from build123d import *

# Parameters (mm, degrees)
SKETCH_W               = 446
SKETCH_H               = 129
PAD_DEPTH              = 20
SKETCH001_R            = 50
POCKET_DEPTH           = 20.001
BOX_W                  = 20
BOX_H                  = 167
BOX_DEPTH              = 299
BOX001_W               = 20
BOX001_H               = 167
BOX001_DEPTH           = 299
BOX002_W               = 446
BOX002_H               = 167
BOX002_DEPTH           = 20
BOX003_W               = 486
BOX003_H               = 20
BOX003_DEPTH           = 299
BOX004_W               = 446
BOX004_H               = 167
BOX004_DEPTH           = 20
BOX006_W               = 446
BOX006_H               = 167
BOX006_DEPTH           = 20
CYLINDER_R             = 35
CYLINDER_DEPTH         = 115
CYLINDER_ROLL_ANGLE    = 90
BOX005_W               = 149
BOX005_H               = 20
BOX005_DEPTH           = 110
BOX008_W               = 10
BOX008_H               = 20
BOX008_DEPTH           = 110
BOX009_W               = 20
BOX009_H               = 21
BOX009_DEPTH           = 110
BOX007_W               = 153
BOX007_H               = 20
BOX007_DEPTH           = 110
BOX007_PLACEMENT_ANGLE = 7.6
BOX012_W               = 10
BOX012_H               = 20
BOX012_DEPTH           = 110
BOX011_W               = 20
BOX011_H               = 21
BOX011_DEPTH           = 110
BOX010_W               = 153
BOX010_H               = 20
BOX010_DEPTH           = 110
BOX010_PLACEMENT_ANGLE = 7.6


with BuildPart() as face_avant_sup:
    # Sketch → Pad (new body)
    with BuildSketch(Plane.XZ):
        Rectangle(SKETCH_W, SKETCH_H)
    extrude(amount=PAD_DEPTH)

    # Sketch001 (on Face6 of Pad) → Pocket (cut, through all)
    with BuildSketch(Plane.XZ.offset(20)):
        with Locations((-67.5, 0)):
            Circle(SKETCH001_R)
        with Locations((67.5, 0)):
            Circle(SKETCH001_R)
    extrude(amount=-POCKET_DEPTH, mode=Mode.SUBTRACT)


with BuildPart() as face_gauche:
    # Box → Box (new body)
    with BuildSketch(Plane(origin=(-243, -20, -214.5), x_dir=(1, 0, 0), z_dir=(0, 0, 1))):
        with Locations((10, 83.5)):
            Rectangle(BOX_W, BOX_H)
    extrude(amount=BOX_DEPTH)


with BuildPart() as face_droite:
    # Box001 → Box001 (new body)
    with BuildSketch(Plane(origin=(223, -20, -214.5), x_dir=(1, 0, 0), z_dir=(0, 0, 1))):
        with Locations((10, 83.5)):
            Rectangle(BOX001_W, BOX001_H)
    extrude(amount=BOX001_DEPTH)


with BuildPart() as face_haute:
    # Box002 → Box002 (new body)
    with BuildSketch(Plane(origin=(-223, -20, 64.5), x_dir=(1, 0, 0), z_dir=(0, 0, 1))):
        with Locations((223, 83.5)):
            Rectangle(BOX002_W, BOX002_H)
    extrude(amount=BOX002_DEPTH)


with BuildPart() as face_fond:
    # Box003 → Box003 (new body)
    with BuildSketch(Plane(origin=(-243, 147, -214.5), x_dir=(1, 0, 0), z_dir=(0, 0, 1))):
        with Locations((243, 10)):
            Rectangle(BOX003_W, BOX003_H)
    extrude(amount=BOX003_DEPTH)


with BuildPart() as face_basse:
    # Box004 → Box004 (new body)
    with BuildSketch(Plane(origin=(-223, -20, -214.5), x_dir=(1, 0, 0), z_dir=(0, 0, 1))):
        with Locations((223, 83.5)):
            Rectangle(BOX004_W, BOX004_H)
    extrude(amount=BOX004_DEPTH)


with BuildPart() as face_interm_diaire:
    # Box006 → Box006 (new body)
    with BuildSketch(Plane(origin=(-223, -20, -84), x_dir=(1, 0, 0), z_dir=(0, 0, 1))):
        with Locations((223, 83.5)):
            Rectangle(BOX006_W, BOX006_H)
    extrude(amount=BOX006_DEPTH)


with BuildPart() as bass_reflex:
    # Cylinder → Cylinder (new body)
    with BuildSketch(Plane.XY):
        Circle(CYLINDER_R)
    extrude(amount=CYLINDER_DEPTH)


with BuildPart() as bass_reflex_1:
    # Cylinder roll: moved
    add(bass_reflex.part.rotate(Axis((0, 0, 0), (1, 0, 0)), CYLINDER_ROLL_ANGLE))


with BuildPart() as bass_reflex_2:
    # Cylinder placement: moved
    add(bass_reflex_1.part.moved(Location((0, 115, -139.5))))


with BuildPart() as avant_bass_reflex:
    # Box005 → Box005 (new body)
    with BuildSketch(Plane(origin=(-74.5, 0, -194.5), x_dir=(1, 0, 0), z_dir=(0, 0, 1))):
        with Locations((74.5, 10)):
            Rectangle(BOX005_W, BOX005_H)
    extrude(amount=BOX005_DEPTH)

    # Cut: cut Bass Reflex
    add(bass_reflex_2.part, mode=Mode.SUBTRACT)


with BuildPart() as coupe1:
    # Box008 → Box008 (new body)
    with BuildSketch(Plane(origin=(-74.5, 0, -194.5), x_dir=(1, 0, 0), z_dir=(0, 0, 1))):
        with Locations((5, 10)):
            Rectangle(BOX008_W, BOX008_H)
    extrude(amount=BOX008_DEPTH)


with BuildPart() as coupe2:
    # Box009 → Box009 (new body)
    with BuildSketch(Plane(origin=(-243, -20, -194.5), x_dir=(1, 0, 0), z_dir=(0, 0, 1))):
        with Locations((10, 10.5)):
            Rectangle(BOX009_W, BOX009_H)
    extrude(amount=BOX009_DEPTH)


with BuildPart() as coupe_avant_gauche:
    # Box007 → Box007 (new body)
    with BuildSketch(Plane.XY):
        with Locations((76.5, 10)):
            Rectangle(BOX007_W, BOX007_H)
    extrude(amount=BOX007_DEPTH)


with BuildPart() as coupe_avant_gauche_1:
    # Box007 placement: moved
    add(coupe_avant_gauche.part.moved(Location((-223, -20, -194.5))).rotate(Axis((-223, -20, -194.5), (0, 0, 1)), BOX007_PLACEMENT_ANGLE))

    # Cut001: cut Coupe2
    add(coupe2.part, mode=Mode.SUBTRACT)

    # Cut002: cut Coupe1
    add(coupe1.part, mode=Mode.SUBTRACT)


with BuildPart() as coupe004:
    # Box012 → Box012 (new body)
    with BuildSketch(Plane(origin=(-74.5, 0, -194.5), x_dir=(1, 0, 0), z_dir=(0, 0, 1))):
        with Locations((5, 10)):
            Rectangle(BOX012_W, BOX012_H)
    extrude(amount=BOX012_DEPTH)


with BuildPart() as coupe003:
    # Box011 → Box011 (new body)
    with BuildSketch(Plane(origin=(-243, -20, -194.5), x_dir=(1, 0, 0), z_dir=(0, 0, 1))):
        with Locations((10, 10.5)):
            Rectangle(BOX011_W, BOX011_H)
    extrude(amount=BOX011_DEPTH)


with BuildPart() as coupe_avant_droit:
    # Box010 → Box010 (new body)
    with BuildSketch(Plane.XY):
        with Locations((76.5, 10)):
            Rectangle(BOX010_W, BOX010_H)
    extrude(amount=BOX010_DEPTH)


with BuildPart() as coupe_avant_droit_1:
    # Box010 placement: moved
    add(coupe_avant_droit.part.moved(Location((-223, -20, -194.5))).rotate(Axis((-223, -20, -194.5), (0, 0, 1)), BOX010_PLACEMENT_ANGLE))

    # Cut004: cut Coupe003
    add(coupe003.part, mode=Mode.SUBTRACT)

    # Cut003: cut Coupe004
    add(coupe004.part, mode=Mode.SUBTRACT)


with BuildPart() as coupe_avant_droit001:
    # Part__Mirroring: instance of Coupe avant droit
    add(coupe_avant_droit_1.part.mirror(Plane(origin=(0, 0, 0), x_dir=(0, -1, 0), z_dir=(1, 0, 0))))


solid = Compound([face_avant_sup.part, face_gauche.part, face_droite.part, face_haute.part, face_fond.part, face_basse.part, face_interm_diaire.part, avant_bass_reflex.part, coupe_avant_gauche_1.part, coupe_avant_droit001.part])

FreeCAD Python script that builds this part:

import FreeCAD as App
import Part
import Sketcher
from FreeCAD import Vector
Q = App.Units.Quantity

doc = App.newDocument("Part")
body = doc.addObject("PartDesign::Body", "Body")

# Sketch on XZ plane
sketch1 = body.newObject("Sketcher::SketchObject", "Sketch")
sketch1.AttachmentSupport = (doc.getObject("XZ_Plane"), [""])
sketch1.MapMode = "FlatFace"
sketch1.addGeometry(Part.LineSegment(Vector(-223, 64, 0), Vector(-223, -64, 0)), False)
sketch1.addGeometry(Part.LineSegment(Vector(-223, -64, 0), Vector(223, -64, 0)), False)
sketch1.addGeometry(Part.LineSegment(Vector(223, -64, 0), Vector(223, 64, 0)), False)
sketch1.addGeometry(Part.LineSegment(Vector(223, 64, 0), Vector(-223, 64, 0)), False)
sketch1.addConstraint(Sketcher.Constraint("Coincident", 0, 2, 1, 1))
sketch1.addConstraint(Sketcher.Constraint("Coincident", 1, 2, 2, 1))
sketch1.addConstraint(Sketcher.Constraint("Coincident", 2, 2, 3, 1))
sketch1.addConstraint(Sketcher.Constraint("Coincident", 3, 2, 0, 1))
sketch1.addConstraint(Sketcher.Constraint("Vertical", 0))
sketch1.addConstraint(Sketcher.Constraint("Horizontal", 1))
sketch1.addConstraint(Sketcher.Constraint("Vertical", 2))
sketch1.addConstraint(Sketcher.Constraint("Horizontal", 3))
sketch1.addConstraint(Sketcher.Constraint("Symmetric", 0, 2, 2, 2, -1, 1))
sketch1.addConstraint(Sketcher.Constraint("DistanceX", 1, 1, 1, 2, Q("446 mm")))
sketch1.addConstraint(Sketcher.Constraint("DistanceY", 0, 2, 0, 1, Q("129 mm")))
pad1 = body.newObject("PartDesign::Pad", "Pad")
pad1.Profile = sketch1
pad1.Length = 20

# Sketch on XZ plane
sketch2 = body.newObject("Sketcher::SketchObject", "Sketch001")
sketch2.AttachmentSupport = (doc.getObject("XZ_Plane"), [""])
sketch2.MapMode = "FlatFace"
sketch2.AttachmentOffset = App.Placement(Vector(0, 0, 20), App.Rotation())
sketch2.addGeometry(Part.Circle(Vector(-68, 0, 0), Vector(0, 0, 1), 50), False)
sketch2.addGeometry(Part.Circle(Vector(68, 0, 0), Vector(0, 0, 1), 50), False)
sketch2.addConstraint(Sketcher.Constraint("Equal", 0, 1))
sketch2.addConstraint(Sketcher.Constraint("Symmetric", 0, 3, 1, 3, -1, 1))
sketch2.addConstraint(Sketcher.Constraint("PointOnObject", 0, 3, -1))
sketch2.addConstraint(Sketcher.Constraint("Diameter", 0, Q("100 mm")))
sketch2.addConstraint(Sketcher.Constraint("DistanceX", 0, 3, 1, 3, Q("135 mm")))
pocket1 = body.newObject("PartDesign::Pocket", "Pocket")
pocket1.Profile = sketch2
pocket1.Type = "ThroughAll"
body2 = doc.addObject("PartDesign::Body", "Body001")

# Sketch on XY plane
sketch3 = body2.newObject("Sketcher::SketchObject", "Sketch002")
sketch3.AttachmentSupport = (doc.getObject("XY_Plane001"), [""])
sketch3.MapMode = "FlatFace"
sketch3.AttachmentOffset = App.Placement(Vector(0, 0, -214.5), App.Rotation())
sketch3.addGeometry(Part.LineSegment(Vector(-243, 147, 0), Vector(-243, -20, 0)), False)
sketch3.addGeometry(Part.LineSegment(Vector(-243, -20, 0), Vector(-223, -20, 0)), False)
sketch3.addGeometry(Part.LineSegment(Vector(-223, -20, 0), Vector(-223, 147, 0)), False)
sketch3.addGeometry(Part.LineSegment(Vector(-223, 147, 0), Vector(-243, 147, 0)), False)
sketch3.addConstraint(Sketcher.Constraint("Coincident", 0, 2, 1, 1))
sketch3.addConstraint(Sketcher.Constraint("Coincident", 1, 2, 2, 1))
sketch3.addConstraint(Sketcher.Constraint("Coincident", 2, 2, 3, 1))
sketch3.addConstraint(Sketcher.Constraint("Coincident", 3, 2, 0, 1))
sketch3.addConstraint(Sketcher.Constraint("Vertical", 0))
sketch3.addConstraint(Sketcher.Constraint("Horizontal", 1))
sketch3.addConstraint(Sketcher.Constraint("Vertical", 2))
sketch3.addConstraint(Sketcher.Constraint("Horizontal", 3))
sketch3.addConstraint(Sketcher.Constraint("DistanceX", 1, 1, 1, 2, Q("20 mm")))
sketch3.addConstraint(Sketcher.Constraint("DistanceY", 0, 2, 0, 1, Q("167 mm")))
sketch3.addConstraint(Sketcher.Constraint("DistanceX", 0, 2, -1, 1, Q("243 mm")))
sketch3.addConstraint(Sketcher.Constraint("DistanceY", 0, 2, -1, 1, Q("20 mm")))
pad2 = body2.newObject("PartDesign::Pad", "Pad001")
pad2.Profile = sketch3
pad2.Length = 299
body3 = doc.addObject("PartDesign::Body", "Body002")

# Sketch on XY plane
sketch4 = body3.newObject("Sketcher::SketchObject", "Sketch003")
sketch4.AttachmentSupport = (doc.getObject("XY_Plane002"), [""])
sketch4.MapMode = "FlatFace"
sketch4.AttachmentOffset = App.Placement(Vector(0, 0, -214.5), App.Rotation())
sketch4.addGeometry(Part.LineSegment(Vector(223, 147, 0), Vector(223, -20, 0)), False)
sketch4.addGeometry(Part.LineSegment(Vector(223, -20, 0), Vector(243, -20, 0)), False)
sketch4.addGeometry(Part.LineSegment(Vector(243, -20, 0), Vector(243, 147, 0)), False)
sketch4.addGeometry(Part.LineSegment(Vector(243, 147, 0), Vector(223, 147, 0)), False)
sketch4.addConstraint(Sketcher.Constraint("Coincident", 0, 2, 1, 1))
sketch4.addConstraint(Sketcher.Constraint("Coincident", 1, 2, 2, 1))
sketch4.addConstraint(Sketcher.Constraint("Coincident", 2, 2, 3, 1))
sketch4.addConstraint(Sketcher.Constraint("Coincident", 3, 2, 0, 1))
sketch4.addConstraint(Sketcher.Constraint("Vertical", 0))
sketch4.addConstraint(Sketcher.Constraint("Horizontal", 1))
sketch4.addConstraint(Sketcher.Constraint("Vertical", 2))
sketch4.addConstraint(Sketcher.Constraint("Horizontal", 3))
sketch4.addConstraint(Sketcher.Constraint("DistanceX", 1, 1, 1, 2, Q("20 mm")))
sketch4.addConstraint(Sketcher.Constraint("DistanceY", 0, 2, 0, 1, Q("167 mm")))
sketch4.addConstraint(Sketcher.Constraint("DistanceX", -1, 1, 0, 2, Q("223 mm")))
sketch4.addConstraint(Sketcher.Constraint("DistanceY", 0, 2, -1, 1, Q("20 mm")))
pad3 = body3.newObject("PartDesign::Pad", "Pad002")
pad3.Profile = sketch4
pad3.Length = 299
body4 = doc.addObject("PartDesign::Body", "Body003")

# Sketch on XY plane
sketch5 = body4.newObject("Sketcher::SketchObject", "Sketch004")
sketch5.AttachmentSupport = (doc.getObject("XY_Plane003"), [""])
sketch5.MapMode = "FlatFace"
sketch5.AttachmentOffset = App.Placement(Vector(0, 0, 64.5), App.Rotation())
sketch5.addGeometry(Part.LineSegment(Vector(-223, 147, 0), Vector(-223, -20, 0)), False)
sketch5.addGeometry(Part.LineSegment(Vector(-223, -20, 0), Vector(223, -20, 0)), False)
sketch5.addGeometry(Part.LineSegment(Vector(223, -20, 0), Vector(223, 147, 0)), False)
sketch5.addGeometry(Part.LineSegment(Vector(223, 147, 0), Vector(-223, 147, 0)), False)
sketch5.addConstraint(Sketcher.Constraint("Coincident", 0, 2, 1, 1))
sketch5.addConstraint(Sketcher.Constraint("Coincident", 1, 2, 2, 1))
sketch5.addConstraint(Sketcher.Constraint("Coincident", 2, 2, 3, 1))
sketch5.addConstraint(Sketcher.Constraint("Coincident", 3, 2, 0, 1))
sketch5.addConstraint(Sketcher.Constraint("Vertical", 0))
sketch5.addConstraint(Sketcher.Constraint("Horizontal", 1))
sketch5.addConstraint(Sketcher.Constraint("Vertical", 2))
sketch5.addConstraint(Sketcher.Constraint("Horizontal", 3))
sketch5.addConstraint(Sketcher.Constraint("DistanceX", 1, 1, 1, 2, Q("446 mm")))
sketch5.addConstraint(Sketcher.Constraint("DistanceY", 0, 2, 0, 1, Q("167 mm")))
sketch5.addConstraint(Sketcher.Constraint("DistanceX", 0, 2, -1, 1, Q("223 mm")))
sketch5.addConstraint(Sketcher.Constraint("DistanceY", 0, 2, -1, 1, Q("20 mm")))
pad4 = body4.newObject("PartDesign::Pad", "Pad003")
pad4.Profile = sketch5
pad4.Length = 20
body5 = doc.addObject("PartDesign::Body", "Body004")

# Sketch on XY plane
sketch6 = body5.newObject("Sketcher::SketchObject", "Sketch005")
sketch6.AttachmentSupport = (doc.getObject("XY_Plane004"), [""])
sketch6.MapMode = "FlatFace"
sketch6.AttachmentOffset = App.Placement(Vector(0, 0, -214.5), App.Rotation())
sketch6.addGeometry(Part.LineSegment(Vector(-243, 167, 0), Vector(-243, 147, 0)), False)
sketch6.addGeometry(Part.LineSegment(Vector(-243, 147, 0), Vector(243, 147, 0)), False)
sketch6.addGeometry(Part.LineSegment(Vector(243, 147, 0), Vector(243, 167, 0)), False)
sketch6.addGeometry(Part.LineSegment(Vector(243, 167, 0), Vector(-243, 167, 0)), False)
sketch6.addConstraint(Sketcher.Constraint("Coincident", 0, 2, 1, 1))
sketch6.addConstraint(Sketcher.Constraint("Coincident", 1, 2, 2, 1))
sketch6.addConstraint(Sketcher.Constraint("Coincident", 2, 2, 3, 1))
sketch6.addConstraint(Sketcher.Constraint("Coincident", 3, 2, 0, 1))
sketch6.addConstraint(Sketcher.Constraint("Vertical", 0))
sketch6.addConstraint(Sketcher.Constraint("Horizontal", 1))
sketch6.addConstraint(Sketcher.Constraint("Vertical", 2))
sketch6.addConstraint(Sketcher.Constraint("Horizontal", 3))
sketch6.addConstraint(Sketcher.Constraint("DistanceX", 1, 1, 1, 2, Q("486 mm")))
sketch6.addConstraint(Sketcher.Constraint("DistanceY", 0, 2, 0, 1, Q("20 mm")))
sketch6.addConstraint(Sketcher.Constraint("DistanceX", 0, 2, -1, 1, Q("243 mm")))
sketch6.addConstraint(Sketcher.Constraint("DistanceY", -1, 1, 0, 2, Q("147 mm")))
pad5 = body5.newObject("PartDesign::Pad", "Pad004")
pad5.Profile = sketch6
pad5.Length = 299
body6 = doc.addObject("PartDesign::Body", "Body005")

# Sketch on XY plane
sketch7 = body6.newObject("Sketcher::SketchObject", "Sketch006")
sketch7.AttachmentSupport = (doc.getObject("XY_Plane005"), [""])
sketch7.MapMode = "FlatFace"
sketch7.AttachmentOffset = App.Placement(Vector(0, 0, -214.5), App.Rotation())
sketch7.addGeometry(Part.LineSegment(Vector(-223, 147, 0), Vector(-223, -20, 0)), False)
sketch7.addGeometry(Part.LineSegment(Vector(-223, -20, 0), Vector(223, -20, 0)), False)
sketch7.addGeometry(Part.LineSegment(Vector(223, -20, 0), Vector(223, 147, 0)), False)
sketch7.addGeometry(Part.LineSegment(Vector(223, 147, 0), Vector(-223, 147, 0)), False)
sketch7.addConstraint(Sketcher.Constraint("Coincident", 0, 2, 1, 1))
sketch7.addConstraint(Sketcher.Constraint("Coincident", 1, 2, 2, 1))
sketch7.addConstraint(Sketcher.Constraint("Coincident", 2, 2, 3, 1))
sketch7.addConstraint(Sketcher.Constraint("Coincident", 3, 2, 0, 1))
sketch7.addConstraint(Sketcher.Constraint("Vertical", 0))
sketch7.addConstraint(Sketcher.Constraint("Horizontal", 1))
sketch7.addConstraint(Sketcher.Constraint("Vertical", 2))
sketch7.addConstraint(Sketcher.Constraint("Horizontal", 3))
sketch7.addConstraint(Sketcher.Constraint("DistanceX", 1, 1, 1, 2, Q("446 mm")))
sketch7.addConstraint(Sketcher.Constraint("DistanceY", 0, 2, 0, 1, Q("167 mm")))
sketch7.addConstraint(Sketcher.Constraint("DistanceX", 0, 2, -1, 1, Q("223 mm")))
sketch7.addConstraint(Sketcher.Constraint("DistanceY", 0, 2, -1, 1, Q("20 mm")))
pad6 = body6.newObject("PartDesign::Pad", "Pad005")
pad6.Profile = sketch7
pad6.Length = 20
body7 = doc.addObject("PartDesign::Body", "Body006")

# Sketch on XY plane
sketch8 = body7.newObject("Sketcher::SketchObject", "Sketch007")
sketch8.AttachmentSupport = (doc.getObject("XY_Plane006"), [""])
sketch8.MapMode = "FlatFace"
sketch8.AttachmentOffset = App.Placement(Vector(0, 0, -84), App.Rotation())
sketch8.addGeometry(Part.LineSegment(Vector(-223, 147, 0), Vector(-223, -20, 0)), False)
sketch8.addGeometry(Part.LineSegment(Vector(-223, -20, 0), Vector(223, -20, 0)), False)
sketch8.addGeometry(Part.LineSegment(Vector(223, -20, 0), Vector(223, 147, 0)), False)
sketch8.addGeometry(Part.LineSegment(Vector(223, 147, 0), Vector(-223, 147, 0)), False)
sketch8.addConstraint(Sketcher.Constraint("Coincident", 0, 2, 1, 1))
sketch8.addConstraint(Sketcher.Constraint("Coincident", 1, 2, 2, 1))
sketch8.addConstraint(Sketcher.Constraint("Coincident", 2, 2, 3, 1))
sketch8.addConstraint(Sketcher.Constraint("Coincident", 3, 2, 0, 1))
sketch8.addConstraint(Sketcher.Constraint("Vertical", 0))
sketch8.addConstraint(Sketcher.Constraint("Horizontal", 1))
sketch8.addConstraint(Sketcher.Constraint("Vertical", 2))
sketch8.addConstraint(Sketcher.Constraint("Horizontal", 3))
sketch8.addConstraint(Sketcher.Constraint("DistanceX", 1, 1, 1, 2, Q("446 mm")))
sketch8.addConstraint(Sketcher.Constraint("DistanceY", 0, 2, 0, 1, Q("167 mm")))
sketch8.addConstraint(Sketcher.Constraint("DistanceX", 0, 2, -1, 1, Q("223 mm")))
sketch8.addConstraint(Sketcher.Constraint("DistanceY", 0, 2, -1, 1, Q("20 mm")))
pad7 = body7.newObject("PartDesign::Pad", "Pad006")
pad7.Profile = sketch8
pad7.Length = 20
body8 = doc.addObject("PartDesign::Body", "Body007")

# Sketch on XY plane
sketch9 = body8.newObject("Sketcher::SketchObject", "Sketch008")
sketch9.AttachmentSupport = (doc.getObject("XY_Plane007"), [""])
sketch9.MapMode = "FlatFace"
sketch9.addGeometry(Part.Circle(Vector(0, 0, 0), Vector(0, 0, 1), 35), False)
sketch9.addConstraint(Sketcher.Constraint("Coincident", 0, 3, -1, 1))
sketch9.addConstraint(Sketcher.Constraint("Diameter", 0, Q("70 mm")))
pad8 = body8.newObject("PartDesign::Pad", "Pad007")
pad8.Profile = sketch9
pad8.Length = 115
body9 = doc.addObject("PartDesign::Body", "Body008")
doc.recompute()

body8.Placement = App.Placement(Vector(0, 0, 0), App.Rotation(Vector(1, 0, 0), 90))
boolean = body9.newObject("PartDesign::Boolean", "Boolean")
boolean.Type = "Fuse"
boolean.addObjects([body8])
body10 = doc.addObject("PartDesign::Body", "Body009")
doc.recompute()

body9.Placement = App.Placement(Vector(0, 115, -139.5), App.Rotation(Vector(0, 0, 1), 0))
boolean2 = body10.newObject("PartDesign::Boolean", "Boolean001")
boolean2.Type = "Fuse"
boolean2.addObjects([body9])
body11 = doc.addObject("PartDesign::Body", "Body010")

# Sketch on XY plane
sketch10 = body11.newObject("Sketcher::SketchObject", "Sketch009")
sketch10.AttachmentSupport = (doc.getObject("XY_Plane010"), [""])
sketch10.MapMode = "FlatFace"
sketch10.AttachmentOffset = App.Placement(Vector(0, 0, -194.5), App.Rotation())
sketch10.addGeometry(Part.LineSegment(Vector(-74, 20, 0), Vector(-74, 0, 0)), False)
sketch10.addGeometry(Part.LineSegment(Vector(-74, 0, 0), Vector(74, 0, 0)), False)
sketch10.addGeometry(Part.LineSegment(Vector(74, 0, 0), Vector(74, 20, 0)), False)
sketch10.addGeometry(Part.LineSegment(Vector(74, 20, 0), Vector(-74, 20, 0)), False)
sketch10.addConstraint(Sketcher.Constraint("Coincident", 0, 2, 1, 1))
sketch10.addConstraint(Sketcher.Constraint("Coincident", 1, 2, 2, 1))
sketch10.addConstraint(Sketcher.Constraint("Coincident", 2, 2, 3, 1))
sketch10.addConstraint(Sketcher.Constraint("Coincident", 3, 2, 0, 1))
sketch10.addConstraint(Sketcher.Constraint("Vertical", 0))
sketch10.addConstraint(Sketcher.Constraint("Horizontal", 1))
sketch10.addConstraint(Sketcher.Constraint("Vertical", 2))
sketch10.addConstraint(Sketcher.Constraint("Horizontal", 3))
sketch10.addConstraint(Sketcher.Constraint("Symmetric", 0, 2, 1, 2, -1, 1))
sketch10.addConstraint(Sketcher.Constraint("DistanceX", 1, 1, 1, 2, Q("149 mm")))
sketch10.addConstraint(Sketcher.Constraint("DistanceY", 0, 2, 0, 1, Q("20 mm")))
pad9 = body11.newObject("PartDesign::Pad", "Pad008")
pad9.Profile = sketch10
pad9.Length = 110
doc.recompute()

boolean3 = body11.newObject("PartDesign::Boolean", "Boolean002")
boolean3.Type = "Cut"
boolean3.addObjects([body10])
body12 = doc.addObject("PartDesign::Body", "Body011")

# Sketch on XY plane
sketch11 = body12.newObject("Sketcher::SketchObject", "Sketch010")
sketch11.AttachmentSupport = (doc.getObject("XY_Plane011"), [""])
sketch11.MapMode = "FlatFace"
sketch11.AttachmentOffset = App.Placement(Vector(0, 0, -194.5), App.Rotation())
sketch11.addGeometry(Part.LineSegment(Vector(-74, 20, 0), Vector(-74, 0, 0)), False)
sketch11.addGeometry(Part.LineSegment(Vector(-74, 0, 0), Vector(-64, 0, 0)), False)
sketch11.addGeometry(Part.LineSegment(Vector(-64, 0, 0), Vector(-64, 20, 0)), False)
sketch11.addGeometry(Part.LineSegment(Vector(-64, 20, 0), Vector(-74, 20, 0)), False)
sketch11.addConstraint(Sketcher.Constraint("Coincident", 0, 2, 1, 1))
sketch11.addConstraint(Sketcher.Constraint("Coincident", 1, 2, 2, 1))
sketch11.addConstraint(Sketcher.Constraint("Coincident", 2, 2, 3, 1))
sketch11.addConstraint(Sketcher.Constraint("Coincident", 3, 2, 0, 1))
sketch11.addConstraint(Sketcher.Constraint("Vertical", 0))
sketch11.addConstraint(Sketcher.Constraint("Horizontal", 1))
sketch11.addConstraint(Sketcher.Constraint("Vertical", 2))
sketch11.addConstraint(Sketcher.Constraint("Horizontal", 3))
sketch11.addConstraint(Sketcher.Constraint("PointOnObject", 0, 2, -1))
sketch11.addConstraint(Sketcher.Constraint("DistanceX", 1, 1, 1, 2, Q("10 mm")))
sketch11.addConstraint(Sketcher.Constraint("DistanceY", 0, 2, 0, 1, Q("20 mm")))
sketch11.addConstraint(Sketcher.Constraint("DistanceX", 0, 2, -1, 1, Q("74.5 mm")))
pad10 = body12.newObject("PartDesign::Pad", "Pad009")
pad10.Profile = sketch11
pad10.Length = 110
body13 = doc.addObject("PartDesign::Body", "Body012")

# Sketch on XY plane
sketch12 = body13.newObject("Sketcher::SketchObject", "Sketch011")
sketch12.AttachmentSupport = (doc.getObject("XY_Plane012"), [""])
sketch12.MapMode = "FlatFace"
sketch12.AttachmentOffset = App.Placement(Vector(0, 0, -194.5), App.Rotation())
sketch12.addGeometry(Part.LineSegment(Vector(-243, 1, 0), Vector(-243, -20, 0)), False)
sketch12.addGeometry(Part.LineSegment(Vector(-243, -20, 0), Vector(-223, -20, 0)), False)
sketch12.addGeometry(Part.LineSegment(Vector(-223, -20, 0), Vector(-223, 1, 0)), False)
sketch12.addGeometry(Part.LineSegment(Vector(-223, 1, 0), Vector(-243, 1, 0)), False)
sketch12.addConstraint(Sketcher.Constraint("Coincident", 0, 2, 1, 1))
sketch12.addConstraint(Sketcher.Constraint("Coincident", 1, 2, 2, 1))
sketch12.addConstraint(Sketcher.Constraint("Coincident", 2, 2, 3, 1))
sketch12.addConstraint(Sketcher.Constraint("Coincident", 3, 2, 0, 1))
sketch12.addConstraint(Sketcher.Constraint("Vertical", 0))
sketch12.addConstraint(Sketcher.Constraint("Horizontal", 1))
sketch12.addConstraint(Sketcher.Constraint("Vertical", 2))
sketch12.addConstraint(Sketcher.Constraint("Horizontal", 3))
sketch12.addConstraint(Sketcher.Constraint("DistanceX", 1, 1, 1, 2, Q("20 mm")))
sketch12.addConstraint(Sketcher.Constraint("DistanceY", 0, 2, 0, 1, Q("21 mm")))
sketch12.addConstraint(Sketcher.Constraint("DistanceX", 0, 2, -1, 1, Q("243 mm")))
sketch12.addConstraint(Sketcher.Constraint("DistanceY", 0, 2, -1, 1, Q("20 mm")))
pad11 = body13.newObject("PartDesign::Pad", "Pad010")
pad11.Profile = sketch12
pad11.Length = 110
body14 = doc.addObject("PartDesign::Body", "Body013")

# Sketch on XY plane
sketch13 = body14.newObject("Sketcher::SketchObject", "Sketch012")
sketch13.AttachmentSupport = (doc.getObject("XY_Plane013"), [""])
sketch13.MapMode = "FlatFace"
sketch13.addGeometry(Part.LineSegment(Vector(0, 20, 0), Vector(0, 0, 0)), False)
sketch13.addGeometry(Part.LineSegment(Vector(0, 0, 0), Vector(153, 0, 0)), False)
sketch13.addGeometry(Part.LineSegment(Vector(153, 0, 0), Vector(153, 20, 0)), False)
sketch13.addGeometry(Part.LineSegment(Vector(153, 20, 0), Vector(0, 20, 0)), False)
sketch13.addConstraint(Sketcher.Constraint("Coincident", 0, 2, 1, 1))
sketch13.addConstraint(Sketcher.Constraint("Coincident", 1, 2, 2, 1))
sketch13.addConstraint(Sketcher.Constraint("Coincident", 2, 2, 3, 1))
sketch13.addConstraint(Sketcher.Constraint("Coincident", 3, 2, 0, 1))
sketch13.addConstraint(Sketcher.Constraint("Vertical", 0))
sketch13.addConstraint(Sketcher.Constraint("Horizontal", 1))
sketch13.addConstraint(Sketcher.Constraint("Vertical", 2))
sketch13.addConstraint(Sketcher.Constraint("Horizontal", 3))
sketch13.addConstraint(Sketcher.Constraint("Coincident", 0, 2, -1, 1))
sketch13.addConstraint(Sketcher.Constraint("DistanceX", 1, 1, 1, 2, Q("153 mm")))
sketch13.addConstraint(Sketcher.Constraint("DistanceY", 0, 2, 0, 1, Q("20 mm")))
pad12 = body14.newObject("PartDesign::Pad", "Pad011")
pad12.Profile = sketch13
pad12.Length = 110
body15 = doc.addObject("PartDesign::Body", "Body014")
body15.AllowCompound = True
doc.recompute()

body14.Placement = App.Placement(Vector(-223, -20, -194.5), App.Rotation(Vector(0, 0, 1), 7.6))
boolean4 = body15.newObject("PartDesign::Boolean", "Boolean003")
boolean4.Type = "Fuse"
boolean4.addObjects([body14])
doc.recompute()

boolean5 = body15.newObject("PartDesign::Boolean", "Boolean004")
boolean5.Type = "Cut"
boolean5.addObjects([body13])
doc.recompute()

boolean6 = body15.newObject("PartDesign::Boolean", "Boolean005")
boolean6.Type = "Cut"
boolean6.addObjects([body12])
body16 = doc.addObject("PartDesign::Body", "Body015")

# Sketch on XY plane
sketch14 = body16.newObject("Sketcher::SketchObject", "Sketch013")
sketch14.AttachmentSupport = (doc.getObject("XY_Plane015"), [""])
sketch14.MapMode = "FlatFace"
sketch14.AttachmentOffset = App.Placement(Vector(0, 0, -194.5), App.Rotation())
sketch14.addGeometry(Part.LineSegment(Vector(-74, 20, 0), Vector(-74, 0, 0)), False)
sketch14.addGeometry(Part.LineSegment(Vector(-74, 0, 0), Vector(-64, 0, 0)), False)
sketch14.addGeometry(Part.LineSegment(Vector(-64, 0, 0), Vector(-64, 20, 0)), False)
sketch14.addGeometry(Part.LineSegment(Vector(-64, 20, 0), Vector(-74, 20, 0)), False)
sketch14.addConstraint(Sketcher.Constraint("Coincident", 0, 2, 1, 1))
sketch14.addConstraint(Sketcher.Constraint("Coincident", 1, 2, 2, 1))
sketch14.addConstraint(Sketcher.Constraint("Coincident", 2, 2, 3, 1))
sketch14.addConstraint(Sketcher.Constraint("Coincident", 3, 2, 0, 1))
sketch14.addConstraint(Sketcher.Constraint("Vertical", 0))
sketch14.addConstraint(Sketcher.Constraint("Horizontal", 1))
sketch14.addConstraint(Sketcher.Constraint("Vertical", 2))
sketch14.addConstraint(Sketcher.Constraint("Horizontal", 3))
sketch14.addConstraint(Sketcher.Constraint("PointOnObject", 0, 2, -1))
sketch14.addConstraint(Sketcher.Constraint("DistanceX", 1, 1, 1, 2, Q("10 mm")))
sketch14.addConstraint(Sketcher.Constraint("DistanceY", 0, 2, 0, 1, Q("20 mm")))
sketch14.addConstraint(Sketcher.Constraint("DistanceX", 0, 2, -1, 1, Q("74.5 mm")))
pad13 = body16.newObject("PartDesign::Pad", "Pad012")
pad13.Profile = sketch14
pad13.Length = 110
body17 = doc.addObject("PartDesign::Body", "Body016")

# Sketch on XY plane
sketch15 = body17.newObject("Sketcher::SketchObject", "Sketch014")
sketch15.AttachmentSupport = (doc.getObject("XY_Plane016"), [""])
sketch15.MapMode = "FlatFace"
sketch15.AttachmentOffset = App.Placement(Vector(0, 0, -194.5), App.Rotation())
sketch15.addGeometry(Part.LineSegment(Vector(-243, 1, 0), Vector(-243, -20, 0)), False)
sketch15.addGeometry(Part.LineSegment(Vector(-243, -20, 0), Vector(-223, -20, 0)), False)
sketch15.addGeometry(Part.LineSegment(Vector(-223, -20, 0), Vector(-223, 1, 0)), False)
sketch15.addGeometry(Part.LineSegment(Vector(-223, 1, 0), Vector(-243, 1, 0)), False)
sketch15.addConstraint(Sketcher.Constraint("Coincident", 0, 2, 1, 1))
sketch15.addConstraint(Sketcher.Constraint("Coincident", 1, 2, 2, 1))
sketch15.addConstraint(Sketcher.Constraint("Coincident", 2, 2, 3, 1))
sketch15.addConstraint(Sketcher.Constraint("Coincident", 3, 2, 0, 1))
sketch15.addConstraint(Sketcher.Constraint("Vertical", 0))
sketch15.addConstraint(Sketcher.Constraint("Horizontal", 1))
sketch15.addConstraint(Sketcher.Constraint("Vertical", 2))
sketch15.addConstraint(Sketcher.Constraint("Horizontal", 3))
sketch15.addConstraint(Sketcher.Constraint("DistanceX", 1, 1, 1, 2, Q("20 mm")))
sketch15.addConstraint(Sketcher.Constraint("DistanceY", 0, 2, 0, 1, Q("21 mm")))
sketch15.addConstraint(Sketcher.Constraint("DistanceX", 0, 2, -1, 1, Q("243 mm")))
sketch15.addConstraint(Sketcher.Constraint("DistanceY", 0, 2, -1, 1, Q("20 mm")))
pad14 = body17.newObject("PartDesign::Pad", "Pad013")
pad14.Profile = sketch15
pad14.Length = 110
body18 = doc.addObject("PartDesign::Body", "Body017")

# Sketch on XY plane
sketch16 = body18.newObject("Sketcher::SketchObject", "Sketch015")
sketch16.AttachmentSupport = (doc.getObject("XY_Plane017"), [""])
sketch16.MapMode = "FlatFace"
sketch16.addGeometry(Part.LineSegment(Vector(0, 20, 0), Vector(0, 0, 0)), False)
sketch16.addGeometry(Part.LineSegment(Vector(0, 0, 0), Vector(153, 0, 0)), False)
sketch16.addGeometry(Part.LineSegment(Vector(153, 0, 0), Vector(153, 20, 0)), False)
sketch16.addGeometry(Part.LineSegment(Vector(153, 20, 0), Vector(0, 20, 0)), False)
sketch16.addConstraint(Sketcher.Constraint("Coincident", 0, 2, 1, 1))
sketch16.addConstraint(Sketcher.Constraint("Coincident", 1, 2, 2, 1))
sketch16.addConstraint(Sketcher.Constraint("Coincident", 2, 2, 3, 1))
sketch16.addConstraint(Sketcher.Constraint("Coincident", 3, 2, 0, 1))
sketch16.addConstraint(Sketcher.Constraint("Vertical", 0))
sketch16.addConstraint(Sketcher.Constraint("Horizontal", 1))
sketch16.addConstraint(Sketcher.Constraint("Vertical", 2))
sketch16.addConstraint(Sketcher.Constraint("Horizontal", 3))
sketch16.addConstraint(Sketcher.Constraint("Coincident", 0, 2, -1, 1))
sketch16.addConstraint(Sketcher.Constraint("DistanceX", 1, 1, 1, 2, Q("153 mm")))
sketch16.addConstraint(Sketcher.Constraint("DistanceY", 0, 2, 0, 1, Q("20 mm")))
pad15 = body18.newObject("PartDesign::Pad", "Pad014")
pad15.Profile = sketch16
pad15.Length = 110
body19 = doc.addObject("PartDesign::Body", "Body018")
body19.AllowCompound = True
doc.recompute()

body18.Placement = App.Placement(Vector(-223, -20, -194.5), App.Rotation(Vector(0, 0, 1), 7.6))
boolean7 = body19.newObject("PartDesign::Boolean", "Boolean006")
boolean7.Type = "Fuse"
boolean7.addObjects([body18])
doc.recompute()

boolean8 = body19.newObject("PartDesign::Boolean", "Boolean007")
boolean8.Type = "Cut"
boolean8.addObjects([body17])
doc.recompute()

boolean9 = body19.newObject("PartDesign::Boolean", "Boolean008")
boolean9.Type = "Cut"
boolean9.addObjects([body16])
body20 = doc.addObject("PartDesign::Body", "Body019")
body20.AllowCompound = True
doc.recompute()

mirroring = doc.addObject("Part::Mirroring", "Mirroring")
mirroring.Source = body19
mirroring.Base = Vector(0, 0, 0)
mirroring.Normal = Vector(1, 0, 0)
body20.BaseFeature = mirroring
doc.recompute()
body15.Visibility = False
mirroring.Visibility = False

doc.recompute()
